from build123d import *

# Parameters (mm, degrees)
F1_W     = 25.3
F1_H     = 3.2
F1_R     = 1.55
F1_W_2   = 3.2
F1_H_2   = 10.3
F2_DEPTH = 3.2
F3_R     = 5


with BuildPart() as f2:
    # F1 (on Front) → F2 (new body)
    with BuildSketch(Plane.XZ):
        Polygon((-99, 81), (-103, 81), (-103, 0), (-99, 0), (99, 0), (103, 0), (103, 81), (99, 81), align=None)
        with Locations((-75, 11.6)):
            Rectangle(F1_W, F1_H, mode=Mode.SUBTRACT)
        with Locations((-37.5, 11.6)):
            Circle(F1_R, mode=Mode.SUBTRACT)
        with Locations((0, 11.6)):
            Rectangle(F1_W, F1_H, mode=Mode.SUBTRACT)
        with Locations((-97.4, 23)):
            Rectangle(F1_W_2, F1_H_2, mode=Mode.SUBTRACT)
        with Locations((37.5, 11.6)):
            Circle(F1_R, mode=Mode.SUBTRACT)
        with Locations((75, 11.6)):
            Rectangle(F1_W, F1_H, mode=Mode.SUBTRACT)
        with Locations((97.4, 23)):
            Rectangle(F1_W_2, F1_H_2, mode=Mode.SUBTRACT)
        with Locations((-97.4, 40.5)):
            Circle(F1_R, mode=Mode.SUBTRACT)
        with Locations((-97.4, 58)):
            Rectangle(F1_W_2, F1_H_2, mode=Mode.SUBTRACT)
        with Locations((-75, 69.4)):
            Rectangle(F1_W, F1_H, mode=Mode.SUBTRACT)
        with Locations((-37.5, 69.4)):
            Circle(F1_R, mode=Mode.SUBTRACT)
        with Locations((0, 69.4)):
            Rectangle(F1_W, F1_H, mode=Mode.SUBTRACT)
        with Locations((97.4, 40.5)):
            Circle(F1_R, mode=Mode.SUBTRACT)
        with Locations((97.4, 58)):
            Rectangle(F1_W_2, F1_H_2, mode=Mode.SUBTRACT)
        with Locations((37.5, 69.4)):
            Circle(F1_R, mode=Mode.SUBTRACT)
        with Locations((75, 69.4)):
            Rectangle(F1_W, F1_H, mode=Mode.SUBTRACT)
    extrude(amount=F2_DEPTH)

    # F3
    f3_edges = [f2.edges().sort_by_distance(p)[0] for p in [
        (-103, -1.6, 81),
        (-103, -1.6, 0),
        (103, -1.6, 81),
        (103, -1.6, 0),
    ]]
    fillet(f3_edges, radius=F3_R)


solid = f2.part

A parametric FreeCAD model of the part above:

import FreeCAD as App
import Part
import Sketcher


def edges_at(feature, points):
    """Names of the edges that pass closest to the given points."""
    edges = feature.Shape.Edges
    near = lambda p: min(range(len(edges)), key=lambda i: edges[i].distToShape(Part.Vertex(*p))[0])
    return sorted({f"Edge{near(p) + 1}" for p in points})

doc = App.newDocument("Part")
params = doc.addObject("Spreadsheet::Sheet", "Params")
for row, (alias, value) in enumerate([
    ("sketch1_diameter", "3.1 mm"),
    ("sketch1_width", "206 mm"),
    ("sketch1_height", "81 mm"),
    ("sketch1_width2", "25.3 mm"),
    ("sketch1_width3", "3.2 mm"),
    ("pad1_length", "3.2 mm"),
    ("fillet_radius", "5 mm"),
], start=1):
    params.set(f"A{row}", alias)
    params.set(f"B{row}", "=" + value)
    params.setAlias(f"B{row}", alias)

body = doc.addObject("PartDesign::Body", "Body")

sketch1 = doc.addObject("Sketcher::SketchObject", "Sketch")
body.addObject(sketch1)
sketch1.AttachmentSupport = (doc.XZ_Plane, [""])
sketch1.MapMode = "FlatFace"
sketch1.addGeometry([
    Part.LineSegment(App.Vector(-103, 81, 0), App.Vector(-103, 0, 0)),
    Part.LineSegment(App.Vector(-103, 0, 0), App.Vector(103, 0, 0)),
    Part.LineSegment(App.Vector(103, 0, 0), App.Vector(103, 81, 0)),
    Part.LineSegment(App.Vector(103, 81, 0), App.Vector(-103, 81, 0)),
    Part.LineSegment(App.Vector(-62.35, 10, 0), App.Vector(-87.65, 10, 0)),
    Part.LineSegment(App.Vector(-87.65, 10, 0), App.Vector(-87.65, 13.2, 0)),
    Part.LineSegment(App.Vector(-87.65, 13.2, 0), App.Vector(-62.35, 13.2, 0)),
    Part.LineSegment(App.Vector(-62.35, 13.2, 0), App.Vector(-62.35, 10, 0)),
    Part.LineSegment(App.Vector(-95.8, 17.85, 0), App.Vector(-99, 17.85, 0)),
    Part.LineSegment(App.Vector(-99, 17.85, 0), App.Vector(-99, 28.15, 0)),
    Part.LineSegment(App.Vector(-99, 28.15, 0), App.Vector(-95.8, 28.15, 0)),
    Part.LineSegment(App.Vector(-95.8, 28.15, 0), App.Vector(-95.8, 17.85, 0)),
    Part.Circle(App.Vector(-37.5, 11.6, 0), App.Vector(0, 0, 1), 1.55),
    Part.Circle(App.Vector(-97.4, 40.5, 0), App.Vector(0, 0, 1), 1.55),
    Part.LineSegment(App.Vector(12.65, 10, 0), App.Vector(-12.65, 10, 0)),
    Part.LineSegment(App.Vector(-12.65, 10, 0), App.Vector(-12.65, 13.2, 0)),
    Part.LineSegment(App.Vector(-12.65, 13.2, 0), App.Vector(12.65, 13.2, 0)),
    Part.LineSegment(App.Vector(12.65, 13.2, 0), App.Vector(12.65, 10, 0)),
    Part.Circle(App.Vector(37.5, 11.6, 0), App.Vector(0, 0, 1), 1.55),
    Part.LineSegment(App.Vector(87.65, 10, 0), App.Vector(62.35, 10, 0)),
    Part.LineSegment(App.Vector(62.35, 10, 0), App.Vector(62.35, 13.2, 0)),
    Part.LineSegment(App.Vector(62.35, 13.2, 0), App.Vector(87.65, 13.2, 0)),
    Part.LineSegment(App.Vector(87.65, 13.2, 0), App.Vector(87.65, 10, 0)),
    Part.LineSegment(App.Vector(99, 17.85, 0), App.Vector(95.8, 17.85, 0)),
    Part.LineSegment(App.Vector(95.8, 17.85, 0), App.Vector(95.8, 28.15, 0)),
    Part.LineSegment(App.Vector(95.8, 28.15, 0), App.Vector(99, 28.15, 0)),
    Part.LineSegment(App.Vector(99, 28.15, 0), App.Vector(99, 17.85, 0)),
    Part.Circle(App.Vector(97.4, 40.5, 0), App.Vector(0, 0, 1), 1.55),
    Part.LineSegment(App.Vector(-95.8, 52.85, 0), App.Vector(-99, 52.85, 0)),
    Part.LineSegment(App.Vector(-99, 52.85, 0), App.Vector(-99, 63.15, 0)),
    Part.LineSegment(App.Vector(-99, 63.15, 0), App.Vector(-95.8, 63.15, 0)),
    Part.LineSegment(App.Vector(-95.8, 63.15, 0), App.Vector(-95.8, 52.85, 0)),
    Part.LineSegment(App.Vector(-62.35, 67.8, 0), App.Vector(-87.65, 67.8, 0)),
    Part.LineSegment(App.Vector(-87.65, 67.8, 0), App.Vector(-87.65, 71, 0)),
    Part.LineSegment(App.Vector(-87.65, 71, 0), App.Vector(-62.35, 71, 0)),
    Part.LineSegment(App.Vector(-62.35, 71, 0), App.Vector(-62.35, 67.8, 0)),
    Part.Circle(App.Vector(-37.5, 69.4, 0), App.Vector(0, 0, 1), 1.55),
    Part.LineSegment(App.Vector(12.65, 67.8, 0), App.Vector(-12.65, 67.8, 0)),
    Part.LineSegment(App.Vector(-12.65, 67.8, 0), App.Vector(-12.65, 71, 0)),
    Part.LineSegment(App.Vector(-12.65, 71, 0), App.Vector(12.65, 71, 0)),
    Part.LineSegment(App.Vector(12.65, 71, 0), App.Vector(12.65, 67.8, 0)),
    Part.Circle(App.Vector(37.5, 69.4, 0), App.Vector(0, 0, 1), 1.55),
    Part.LineSegment(App.Vector(99, 52.85, 0), App.Vector(95.8, 52.85, 0)),
    Part.LineSegment(App.Vector(95.8, 52.85, 0), App.Vector(95.8, 63.15, 0)),
    Part.LineSegment(App.Vector(95.8, 63.15, 0), App.Vector(99, 63.15, 0)),
    Part.LineSegment(App.Vector(99, 63.15, 0), App.Vector(99, 52.85, 0)),
    Part.LineSegment(App.Vector(87.65, 67.8, 0), App.Vector(62.35, 67.8, 0)),
    Part.LineSegment(App.Vector(62.35, 67.8, 0), App.Vector(62.35, 71, 0)),
    Part.LineSegment(App.Vector(62.35, 71, 0), App.Vector(87.65, 71, 0)),
    Part.LineSegment(App.Vector(87.65, 71, 0), App.Vector(87.65, 67.8, 0)),
], False)
sketch1.addConstraint([
    Sketcher.Constraint("Coincident", 0, 2, 1, 1),
    Sketcher.Constraint("Coincident", 1, 2, 2, 1),
    Sketcher.Constraint("Coincident", 2, 2, 3, 1),
    Sketcher.Constraint("Coincident", 3, 2, 0, 1),
    Sketcher.Constraint("Coincident", 4, 2, 5, 1),
    Sketcher.Constraint("Coincident", 5, 2, 6, 1),
    Sketcher.Constraint("Coincident", 6, 2, 7, 1),
    Sketcher.Constraint("Coincident", 7, 2, 4, 1),
    Sketcher.Constraint("Coincident", 8, 2, 9, 1),
    Sketcher.Constraint("Coincident", 9, 2, 10, 1),
    Sketcher.Constraint("Coincident", 10, 2, 11, 1),
    Sketcher.Constraint("Coincident", 11, 2, 8, 1),
    Sketcher.Constraint("Coincident", 14, 2, 15, 1),
    Sketcher.Constraint("Coincident", 15, 2, 16, 1),
    Sketcher.Constraint("Coincident", 16, 2, 17, 1),
    Sketcher.Constraint("Coincident", 17, 2, 14, 1),
    Sketcher.Constraint("Coincident", 19, 2, 20, 1),
    Sketcher.Constraint("Coincident", 20, 2, 21, 1),
    Sketcher.Constraint("Coincident", 21, 2, 22, 1),
    Sketcher.Constraint("Coincident", 22, 2, 19, 1),
    Sketcher.Constraint("Coincident", 23, 2, 24, 1),
    Sketcher.Constraint("Coincident", 24, 2, 25, 1),
    Sketcher.Constraint("Coincident", 25, 2, 26, 1),
    Sketcher.Constraint("Coincident", 26, 2, 23, 1),
    Sketcher.Constraint("Coincident", 28, 2, 29, 1),
    Sketcher.Constraint("Coincident", 29, 2, 30, 1),
    Sketcher.Constraint("Coincident", 30, 2, 31, 1),
    Sketcher.Constraint("Coincident", 31, 2, 28, 1),
    Sketcher.Constraint("Coincident", 32, 2, 33, 1),
    Sketcher.Constraint("Coincident", 33, 2, 34, 1),
    Sketcher.Constraint("Coincident", 34, 2, 35, 1),
    Sketcher.Constraint("Coincident", 35, 2, 32, 1),
    Sketcher.Constraint("Coincident", 37, 2, 38, 1),
    Sketcher.Constraint("Coincident", 38, 2, 39, 1),
    Sketcher.Constraint("Coincident", 39, 2, 40, 1),
    Sketcher.Constraint("Coincident", 40, 2, 37, 1),
    Sketcher.Constraint("Coincident", 42, 2, 43, 1),
    Sketcher.Constraint("Coincident", 43, 2, 44, 1),
    Sketcher.Constraint("Coincident", 44, 2, 45, 1),
    Sketcher.Constraint("Coincident", 45, 2, 42, 1),
    Sketcher.Constraint("Coincident", 46, 2, 47, 1),
    Sketcher.Constraint("Coincident", 47, 2, 48, 1),
    Sketcher.Constraint("Coincident", 48, 2, 49, 1),
    Sketcher.Constraint("Coincident", 49, 2, 46, 1),
    Sketcher.Constraint("Vertical", 0),
    Sketcher.Constraint("Horizontal", 1),
    Sketcher.Constraint("Vertical", 2),
    Sketcher.Constraint("Horizontal", 3),
    Sketcher.Constraint("Horizontal", 4),
    Sketcher.Constraint("Vertical", 5),
    Sketcher.Constraint("Horizontal", 6),
    Sketcher.Constraint("Vertical", 7),
    Sketcher.Constraint("Horizontal", 8),
    Sketcher.Constraint("Vertical", 9),
    Sketcher.Constraint("Horizontal", 10),
    Sketcher.Constraint("Vertical", 11),
    Sketcher.Constraint("Horizontal", 14),
    Sketcher.Constraint("Vertical", 15),
    Sketcher.Constraint("Horizontal", 16),
    Sketcher.Constraint("Vertical", 17),
    Sketcher.Constraint("Horizontal", 19),
    Sketcher.Constraint("Vertical", 20),
    Sketcher.Constraint("Horizontal", 21),
    Sketcher.Constraint("Vertical", 22),
    Sketcher.Constraint("Horizontal", 23),
    Sketcher.Constraint("Vertical", 24),
    Sketcher.Constraint("Horizontal", 25),
    Sketcher.Constraint("Vertical", 26),
    Sketcher.Constraint("Horizontal", 28),
    Sketcher.Constraint("Vertical", 29),
    Sketcher.Constraint("Horizontal", 30),
    Sketcher.Constraint("Vertical", 31),
    Sketcher.Constraint("Horizontal", 32),
    Sketcher.Constraint("Vertical", 33),
    Sketcher.Constraint("Horizontal", 34),
    Sketcher.Constraint("Vertical", 35),
    Sketcher.Constraint("Horizontal", 37),
    Sketcher.Constraint("Vertical", 38),
    Sketcher.Constraint("Horizontal", 39),
    Sketcher.Constraint("Vertical", 40),
    Sketcher.Constraint("Horizontal", 42),
    Sketcher.Constraint("Vertical", 43),
    Sketcher.Constraint("Horizontal", 44),
    Sketcher.Constraint("Vertical", 45),
    Sketcher.Constraint("Horizontal", 46),
    Sketcher.Constraint("Vertical", 47),
    Sketcher.Constraint("Horizontal", 48),
    Sketcher.Constraint("Vertical", 49),
    Sketcher.Constraint("Equal", 12, 13),
    Sketcher.Constraint("Equal", 13, 18),
    Sketcher.Constraint("Equal", 18, 27),
    Sketcher.Constraint("Equal", 27, 36),
    Sketcher.Constraint("Equal", 36, 41),
    Sketcher.Constraint("Symmetric", 0, 2, 1, 2, -1, 1),
    Sketcher.Constraint("Symmetric", 12, 3, 18, 3, -2),
    Sketcher.Constraint("Symmetric", 13, 3, 27, 3, -2),
    Sketcher.Constraint("Symmetric", 36, 3, 41, 3, -2),
    Sketcher.Constraint("Symmetric", 7, 2, 19, 2, -2),
    Sketcher.Constraint("Symmetric", 5, 2, 21, 2, -2),
    Sketcher.Constraint("Symmetric", 11, 2, 23, 2, -2),
    Sketcher.Constraint("Symmetric", 9, 2, 25, 2, -2),
    Sketcher.Constraint("Symmetric", 31, 2, 42, 2, -2),
    Sketcher.Constraint("Symmetric", 29, 2, 44, 2, -2),
    Sketcher.Constraint("Symmetric", 35, 2, 46, 2, -2),
    Sketcher.Constraint("Symmetric", 33, 2, 48, 2, -2),
    Sketcher.Constraint("Horizontal", 7, 2, 14, 2),
    Sketcher.Constraint("Horizontal", 6, 2, 15, 2),
    Sketcher.Constraint("Horizontal", 35, 2, 37, 2),
    Sketcher.Constraint("Horizontal", 34, 2, 38, 2),
    Sketcher.Constraint("Vertical", 12, 3, 36, 3),
    Sketcher.Constraint("Vertical", 9, 2, 28, 2),
    Sketcher.Constraint("Vertical", 11, 2, 30, 2),
    Sketcher.Constraint("Vertical", 5, 2, 32, 2),
    Sketcher.Constraint("Vertical", 7, 2, 34, 2),
    Sketcher.Constraint("Vertical", 15, 2, 37, 2),
    Sketcher.Constraint("Vertical", 17, 2, 39, 2),
    Sketcher.Constraint("Equal", 6, 14),
    Sketcher.Constraint("Equal", 44, 5),
    Sketcher.Constraint("Equal", 26, 29),
    Sketcher.Constraint("Equal", 22, 33),
    Sketcher.Constraint("Diameter", 12, 3.1),
    Sketcher.Constraint("DistanceX", 1, 1, 1, 2, 206.0),
    Sketcher.Constraint("DistanceY", 0, 2, 0, 1, 81.0),
    Sketcher.Constraint("DistanceX", 4, 2, 4, 1, 25.3),
    Sketcher.Constraint("DistanceX", 8, 2, 8, 1, 3.2),
    Sketcher.Constraint("DistanceY", 9, 1, 9, 2, 10.3),
    Sketcher.Constraint("DistanceY", -1, 1, 4, 2, 10.0),
    Sketcher.Constraint("DistanceX", 8, 2, -1, 1, 99.0),
    Sketcher.Constraint("DistanceY", -1, 1, 33, 2, 71.0),
    Sketcher.Constraint("DistanceX", 12, 3, 18, 3, 75.0),
    Sketcher.Constraint("DistanceY", 8, 2, 28, 2, 35.0),
    Sketcher.Constraint("DistanceY", -1, 1, 12, 3, 11.6),
    Sketcher.Constraint("DistanceX", 13, 3, -1, 1, 97.4),
    Sketcher.Constraint("DistanceY", -1, 1, 13, 3, 40.5),
    Sketcher.Constraint("DistanceY", -1, 1, 36, 3, 69.4),
    Sketcher.Constraint("DistanceX", 7, 2, 14, 2, 49.7),
    Sketcher.Constraint("DistanceX", 17, 2, 19, 2, 49.7),
    Sketcher.Constraint("DistanceY", -1, 1, 8, 2, 17.85),
])
sketch1.setExpression("Constraints[120]", "Params.sketch1_diameter")
sketch1.setExpression("Constraints[121]", "Params.sketch1_width")
sketch1.setExpression("Constraints[122]", "Params.sketch1_height")
sketch1.setExpression("Constraints[123]", "Params.sketch1_width2")
sketch1.setExpression("Constraints[124]", "Params.sketch1_width3")
pad1 = doc.addObject("PartDesign::Pad", "Pad")
body.addObject(pad1)
pad1.Profile = sketch1
pad1.setExpression("Length", "Params.pad1_length")
doc.recompute()

fillet = doc.addObject("PartDesign::Fillet", "Fillet")
body.addObject(fillet)
fillet.Base = (pad1, edges_at(pad1, [
    (-103, -1.6, 81),
    (-103, -1.6, 0),
    (103, -1.6, 81),
    (103, -1.6, 0),
]))
fillet.setExpression("Radius", "Params.fillet_radius")

doc.recompute()
